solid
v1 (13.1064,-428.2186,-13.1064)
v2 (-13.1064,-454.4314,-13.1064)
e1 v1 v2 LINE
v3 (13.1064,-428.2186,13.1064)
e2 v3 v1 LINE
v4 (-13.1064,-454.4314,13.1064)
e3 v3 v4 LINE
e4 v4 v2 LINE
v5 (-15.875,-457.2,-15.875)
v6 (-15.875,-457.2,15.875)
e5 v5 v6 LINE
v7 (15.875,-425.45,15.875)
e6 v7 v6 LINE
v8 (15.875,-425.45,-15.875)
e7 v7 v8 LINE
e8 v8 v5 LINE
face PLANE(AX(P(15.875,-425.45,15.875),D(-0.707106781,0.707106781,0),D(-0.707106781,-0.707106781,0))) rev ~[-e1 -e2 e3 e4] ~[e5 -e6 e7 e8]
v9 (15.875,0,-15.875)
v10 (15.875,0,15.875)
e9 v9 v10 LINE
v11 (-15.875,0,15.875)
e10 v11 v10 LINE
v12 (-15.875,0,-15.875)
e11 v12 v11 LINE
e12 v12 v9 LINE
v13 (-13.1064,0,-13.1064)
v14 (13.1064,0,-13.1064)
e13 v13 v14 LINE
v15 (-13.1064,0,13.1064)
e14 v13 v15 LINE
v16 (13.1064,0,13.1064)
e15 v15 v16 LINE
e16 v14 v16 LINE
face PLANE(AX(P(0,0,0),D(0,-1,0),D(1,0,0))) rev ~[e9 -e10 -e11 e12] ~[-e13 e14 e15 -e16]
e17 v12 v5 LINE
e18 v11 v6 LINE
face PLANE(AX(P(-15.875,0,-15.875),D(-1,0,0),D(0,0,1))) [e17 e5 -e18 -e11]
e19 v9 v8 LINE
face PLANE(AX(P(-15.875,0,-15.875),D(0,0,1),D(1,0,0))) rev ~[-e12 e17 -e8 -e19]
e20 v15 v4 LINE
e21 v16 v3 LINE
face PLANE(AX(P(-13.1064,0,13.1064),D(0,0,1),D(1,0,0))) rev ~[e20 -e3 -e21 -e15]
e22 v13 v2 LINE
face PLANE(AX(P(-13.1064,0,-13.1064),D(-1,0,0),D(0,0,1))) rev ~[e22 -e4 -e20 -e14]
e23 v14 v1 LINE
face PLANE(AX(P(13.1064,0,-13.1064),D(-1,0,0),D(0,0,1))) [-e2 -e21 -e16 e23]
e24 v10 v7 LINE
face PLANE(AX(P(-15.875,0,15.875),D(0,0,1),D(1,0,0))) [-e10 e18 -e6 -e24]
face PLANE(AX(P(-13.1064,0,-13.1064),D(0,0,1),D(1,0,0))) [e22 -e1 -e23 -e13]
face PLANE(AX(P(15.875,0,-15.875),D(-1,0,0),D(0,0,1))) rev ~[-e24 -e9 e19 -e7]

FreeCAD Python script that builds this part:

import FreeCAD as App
import Part
import Sketcher
from FreeCAD import Vector
Q = App.Units.Quantity


def add_polygon(sketch, points):
    """Adds a closed chain of lines whose ends are joined by coincident constraints."""
    first, n = sketch.GeometryCount, len(points)
    for a, b in zip(points, points[1:] + points[:1]):
        sketch.addGeometry(Part.LineSegment(App.Vector(*a, 0), App.Vector(*b, 0)), False)
    for i in range(n):
        sketch.addConstraint(Sketcher.Constraint("Coincident", first + i, 2, first + (i + 1) % n, 1))

doc = App.newDocument("Part")
body = doc.addObject("PartDesign::Body", "Body")

# Sketch on XZ plane
sketch1 = body.newObject("Sketcher::SketchObject", "Sketch")
sketch1.AttachmentSupport = (doc.getObject("XZ_Plane"), [""])
sketch1.MapMode = "FlatFace"
add_polygon(sketch1, [(-16, 16), (-16, -16), (16, -16), (16, 16)])  # lines 0-3
add_polygon(sketch1, [(13, -13), (-13, -13), (-13, 13), (13, 13)])  # lines 4-7
sketch1.addConstraint(Sketcher.Constraint("Vertical", 0))
sketch1.addConstraint(Sketcher.Constraint("Horizontal", 1))
sketch1.addConstraint(Sketcher.Constraint("Vertical", 2))
sketch1.addConstraint(Sketcher.Constraint("Horizontal", 3))
sketch1.addConstraint(Sketcher.Constraint("Horizontal", 4))
sketch1.addConstraint(Sketcher.Constraint("Vertical", 5))
sketch1.addConstraint(Sketcher.Constraint("Horizontal", 6))
sketch1.addConstraint(Sketcher.Constraint("Vertical", 7))
sketch1.addConstraint(Sketcher.Constraint("Symmetric", 0, 2, 2, 2, -1, 1))
sketch1.addConstraint(Sketcher.Constraint("Symmetric", 4, 2, 6, 2, -1, 1))
sketch1.addConstraint(Sketcher.Constraint("Equal", 3, 0))
sketch1.addConstraint(Sketcher.Constraint("Equal", 6, 5))
sketch1.addConstraint(Sketcher.Constraint("DistanceX", 1, 1, 1, 2, Q("1.25 in")))
sketch1.addConstraint(Sketcher.Constraint("DistanceX", 4, 2, 4, 1, Q("1.032 in")))
pad1 = body.newObject("PartDesign::Pad", "Pad")
pad1.Profile = sketch1
pad1.Length = Q("18 in")

# Sketch on XY plane
sketch2 = body.newObject("Sketcher::SketchObject", "Sketch001")
sketch2.AttachmentSupport = (doc.getObject("XY_Plane"), [""])
sketch2.MapMode = "FlatFace"
sketch2.AttachmentOffset = App.Placement(Vector(0, 0, 0.625 * 25.4), App.Rotation())
add_polygon(sketch2, [(-16, -457), (16, -457), (16, -425)])  # lines 0-2
sketch2.addConstraint(Sketcher.Constraint("Horizontal", 0))
sketch2.addConstraint(Sketcher.Constraint("Vertical", 1))
sketch2.addConstraint(Sketcher.Constraint("Equal", 0, 1))
sketch2.addConstraint(Sketcher.Constraint("DistanceY", 0, 2, -1, 1, Q("18 in")))
sketch2.addConstraint(Sketcher.Constraint("DistanceX", 0, 1, 0, 2, Q("1.25 in")))
sketch2.addConstraint(Sketcher.Constraint("DistanceX", -1, 1, 0, 2, Q("0.625 in")))
pocket1 = body.newObject("PartDesign::Pocket", "Pocket")
pocket1.Profile = sketch2
pocket1.Length = Q("1.25 in")

doc.recompute()
